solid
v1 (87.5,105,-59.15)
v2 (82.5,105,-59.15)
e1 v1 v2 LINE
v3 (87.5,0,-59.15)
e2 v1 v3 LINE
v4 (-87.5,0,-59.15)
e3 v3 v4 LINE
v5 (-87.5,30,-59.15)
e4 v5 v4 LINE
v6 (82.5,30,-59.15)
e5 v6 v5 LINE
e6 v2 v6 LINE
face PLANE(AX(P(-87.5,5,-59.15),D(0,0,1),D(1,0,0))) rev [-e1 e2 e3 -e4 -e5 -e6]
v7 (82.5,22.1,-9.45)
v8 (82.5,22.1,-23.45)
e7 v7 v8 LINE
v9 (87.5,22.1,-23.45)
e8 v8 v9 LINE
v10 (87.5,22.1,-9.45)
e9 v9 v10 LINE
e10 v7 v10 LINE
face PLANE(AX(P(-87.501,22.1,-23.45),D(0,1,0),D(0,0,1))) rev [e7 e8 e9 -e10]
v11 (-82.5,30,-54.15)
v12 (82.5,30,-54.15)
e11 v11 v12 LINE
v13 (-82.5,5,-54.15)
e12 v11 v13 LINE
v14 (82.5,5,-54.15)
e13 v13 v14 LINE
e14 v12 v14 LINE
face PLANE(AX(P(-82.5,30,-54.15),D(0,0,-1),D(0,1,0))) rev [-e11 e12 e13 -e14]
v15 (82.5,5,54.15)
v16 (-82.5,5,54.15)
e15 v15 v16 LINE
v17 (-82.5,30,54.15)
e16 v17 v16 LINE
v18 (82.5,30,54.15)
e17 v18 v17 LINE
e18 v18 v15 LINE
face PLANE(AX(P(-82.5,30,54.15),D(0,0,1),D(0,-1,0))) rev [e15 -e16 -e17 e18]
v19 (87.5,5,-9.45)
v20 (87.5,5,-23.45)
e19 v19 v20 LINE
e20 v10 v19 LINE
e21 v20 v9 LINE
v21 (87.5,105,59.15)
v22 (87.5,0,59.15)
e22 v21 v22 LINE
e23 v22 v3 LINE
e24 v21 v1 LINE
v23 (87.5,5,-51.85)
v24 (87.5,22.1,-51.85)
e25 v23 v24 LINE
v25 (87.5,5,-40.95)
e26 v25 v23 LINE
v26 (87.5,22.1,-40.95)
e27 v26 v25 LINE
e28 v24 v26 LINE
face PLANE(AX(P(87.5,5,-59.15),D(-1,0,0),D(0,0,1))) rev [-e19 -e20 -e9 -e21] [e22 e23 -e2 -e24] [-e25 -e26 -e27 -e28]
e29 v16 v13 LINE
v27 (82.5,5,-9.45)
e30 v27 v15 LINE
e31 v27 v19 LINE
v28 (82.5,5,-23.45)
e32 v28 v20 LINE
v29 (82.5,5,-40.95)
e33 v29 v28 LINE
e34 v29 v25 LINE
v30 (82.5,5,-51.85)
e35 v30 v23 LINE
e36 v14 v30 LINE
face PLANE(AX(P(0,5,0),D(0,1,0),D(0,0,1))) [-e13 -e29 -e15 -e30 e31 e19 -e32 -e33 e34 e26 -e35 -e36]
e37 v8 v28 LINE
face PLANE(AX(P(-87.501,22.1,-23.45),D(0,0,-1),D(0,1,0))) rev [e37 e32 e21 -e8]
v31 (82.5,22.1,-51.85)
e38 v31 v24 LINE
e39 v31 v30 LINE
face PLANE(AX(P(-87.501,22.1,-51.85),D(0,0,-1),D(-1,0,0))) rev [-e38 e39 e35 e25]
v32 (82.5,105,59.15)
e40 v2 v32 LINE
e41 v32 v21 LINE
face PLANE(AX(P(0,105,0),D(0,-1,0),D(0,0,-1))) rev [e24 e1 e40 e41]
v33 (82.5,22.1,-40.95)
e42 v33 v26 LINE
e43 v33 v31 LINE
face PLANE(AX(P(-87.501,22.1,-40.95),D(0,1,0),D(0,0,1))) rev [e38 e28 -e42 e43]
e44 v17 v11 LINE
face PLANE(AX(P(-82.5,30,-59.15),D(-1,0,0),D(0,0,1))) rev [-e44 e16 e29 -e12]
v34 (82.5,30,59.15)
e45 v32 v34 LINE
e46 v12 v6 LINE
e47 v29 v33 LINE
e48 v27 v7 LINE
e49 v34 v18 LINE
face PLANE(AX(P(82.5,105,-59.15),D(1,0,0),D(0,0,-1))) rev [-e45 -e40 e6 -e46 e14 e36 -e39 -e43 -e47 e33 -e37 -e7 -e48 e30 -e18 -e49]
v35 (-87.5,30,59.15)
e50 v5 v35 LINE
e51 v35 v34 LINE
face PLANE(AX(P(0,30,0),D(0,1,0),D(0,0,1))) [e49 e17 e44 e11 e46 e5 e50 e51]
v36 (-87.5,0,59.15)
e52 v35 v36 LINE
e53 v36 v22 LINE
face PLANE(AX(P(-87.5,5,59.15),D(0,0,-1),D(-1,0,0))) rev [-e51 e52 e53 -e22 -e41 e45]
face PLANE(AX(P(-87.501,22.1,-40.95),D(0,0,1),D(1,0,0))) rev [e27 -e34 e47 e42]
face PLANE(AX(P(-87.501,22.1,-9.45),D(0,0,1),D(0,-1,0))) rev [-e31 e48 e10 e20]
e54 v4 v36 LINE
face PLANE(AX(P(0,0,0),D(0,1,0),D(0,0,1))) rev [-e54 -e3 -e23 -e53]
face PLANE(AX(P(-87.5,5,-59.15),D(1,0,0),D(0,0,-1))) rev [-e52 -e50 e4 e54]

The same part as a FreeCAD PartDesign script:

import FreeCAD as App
import Part
import Sketcher

doc = App.newDocument("Part")
body = doc.addObject("PartDesign::Body", "Body")

# Sketch on XZ plane
sketch1 = body.newObject("Sketcher::SketchObject", "Sketch")
sketch1.AttachmentSupport = (doc.getObject("XZ_Plane"), [""])
sketch1.MapMode = "FlatFace"
sketch1.addGeometry([
    Part.LineSegment(App.Vector(-88, -59, 0), App.Vector(-88, 59, 0)),
    Part.LineSegment(App.Vector(-88, 59, 0), App.Vector(88, 59, 0)),
    Part.LineSegment(App.Vector(88, 59, 0), App.Vector(88, -59, 0)),
    Part.LineSegment(App.Vector(88, -59, 0), App.Vector(-88, -59, 0)),
], False)
sketch1.addConstraint([
    Sketcher.Constraint("Coincident", 0, 2, 1, 1),
    Sketcher.Constraint("Coincident", 1, 2, 2, 1),
    Sketcher.Constraint("Coincident", 2, 2, 3, 1),
    Sketcher.Constraint("Coincident", 3, 2, 0, 1),
    Sketcher.Constraint("Vertical", 0),
    Sketcher.Constraint("Horizontal", 1),
    Sketcher.Constraint("Vertical", 2),
    Sketcher.Constraint("Horizontal", 3),
    Sketcher.Constraint("Symmetric", 0, 2, 2, 2, -1, 1),
    Sketcher.Constraint("DistanceX", 1, 1, 1, 2, 175.0),
    Sketcher.Constraint("DistanceY", 0, 1, 0, 2, 118.3),
])
pad1 = body.newObject("PartDesign::Pad", "Pad")
pad1.Profile = sketch1
pad1.Length = 5
pad1.Reversed = True

# Sketch on XZ plane
sketch2 = body.newObject("Sketcher::SketchObject", "Sketch001")
sketch2.AttachmentSupport = (doc.getObject("XZ_Plane"), [""])
sketch2.MapMode = "FlatFace"
sketch2.AttachmentOffset = App.Placement(App.Vector(0, 0, -5), App.Rotation())
sketch2.addGeometry([
    Part.LineSegment(App.Vector(-88, -59, 0), App.Vector(-88, 59, 0)),
    Part.LineSegment(App.Vector(-88, 59, 0), App.Vector(-82, 59, 0)),
    Part.LineSegment(App.Vector(-82, 59, 0), App.Vector(-82, -59, 0)),
    Part.LineSegment(App.Vector(-82, -59, 0), App.Vector(-88, -59, 0)),
], False)
sketch2.addConstraint([
    Sketcher.Constraint("Coincident", 0, 2, 1, 1),
    Sketcher.Constraint("Coincident", 1, 2, 2, 1),
    Sketcher.Constraint("Coincident", 2, 2, 3, 1),
    Sketcher.Constraint("Coincident", 3, 2, 0, 1),
    Sketcher.Constraint("Vertical", 0),
    Sketcher.Constraint("Horizontal", 1),
    Sketcher.Constraint("Vertical", 2),
    Sketcher.Constraint("Horizontal", 3),
    Sketcher.Constraint("DistanceX", 1, 1, 1, 2, 5.0),
    Sketcher.Constraint("DistanceY", 0, 1, 0, 2, 118.3),
    Sketcher.Constraint("DistanceX", 0, 2, -1, 1, 87.5),
    Sketcher.Constraint("DistanceY", -1, 1, 0, 2, 59.15),
])
pad2 = body.newObject("PartDesign::Pad", "Pad001")
pad2.Profile = sketch2
pad2.Length = 25
pad2.Reversed = True

# Sketch on XZ plane
sketch3 = body.newObject("Sketcher::SketchObject", "Sketch002")
sketch3.AttachmentSupport = (doc.getObject("XZ_Plane"), [""])
sketch3.MapMode = "FlatFace"
sketch3.AttachmentOffset = App.Placement(App.Vector(0, 0, -5), App.Rotation())
sketch3.addGeometry([
    Part.LineSegment(App.Vector(82, -59, 0), App.Vector(82, 59, 0)),
    Part.LineSegment(App.Vector(82, 59, 0), App.Vector(88, 59, 0)),
    Part.LineSegment(App.Vector(88, 59, 0), App.Vector(88, -59, 0)),
    Part.LineSegment(App.Vector(88, -59, 0), App.Vector(82, -59, 0)),
], False)
sketch3.addConstraint([
    Sketcher.Constraint("Coincident", 0, 2, 1, 1),
    Sketcher.Constraint("Coincident", 1, 2, 2, 1),
    Sketcher.Constraint("Coincident", 2, 2, 3, 1),
    Sketcher.Constraint("Coincident", 3, 2, 0, 1),
    Sketcher.Constraint("Vertical", 0),
    Sketcher.Constraint("Horizontal", 1),
    Sketcher.Constraint("Vertical", 2),
    Sketcher.Constraint("Horizontal", 3),
    Sketcher.Constraint("DistanceX", 1, 1, 1, 2, 5.0),
    Sketcher.Constraint("DistanceY", 0, 1, 0, 2, 118.3),
    Sketcher.Constraint("DistanceX", -1, 1, 0, 2, 82.5),
    Sketcher.Constraint("DistanceY", -1, 1, 0, 2, 59.15),
])
pad3 = body.newObject("PartDesign::Pad", "Pad002")
pad3.Profile = sketch3
pad3.Length = 100
pad3.Reversed = True

# Sketch on XZ plane
sketch4 = body.newObject("Sketcher::SketchObject", "Sketch003")
sketch4.AttachmentSupport = (doc.getObject("XZ_Plane"), [""])
sketch4.MapMode = "FlatFace"
sketch4.AttachmentOffset = App.Placement(App.Vector(0, 0, -5), App.Rotation())
sketch4.addGeometry([
    Part.LineSegment(App.Vector(-82, 54, 0), App.Vector(-82, 59, 0)),
    Part.LineSegment(App.Vector(-82, 59, 0), App.Vector(82, 59, 0)),
    Part.LineSegment(App.Vector(82, 59, 0), App.Vector(82, 54, 0)),
    Part.LineSegment(App.Vector(82, 54, 0), App.Vector(-82, 54, 0)),
], False)
sketch4.addConstraint([
    Sketcher.Constraint("Coincident", 0, 2, 1, 1),
    Sketcher.Constraint("Coincident", 1, 2, 2, 1),
    Sketcher.Constraint("Coincident", 2, 2, 3, 1),
    Sketcher.Constraint("Coincident", 3, 2, 0, 1),
    Sketcher.Constraint("Vertical", 0),
    Sketcher.Constraint("Horizontal", 1),
    Sketcher.Constraint("Vertical", 2),
    Sketcher.Constraint("Horizontal", 3),
    Sketcher.Constraint("DistanceX", 1, 1, 1, 2, 165.0),
    Sketcher.Constraint("DistanceY", 0, 1, 0, 2, 5.0),
    Sketcher.Constraint("DistanceX", 0, 2, -1, 1, 82.5),
    Sketcher.Constraint("DistanceY", -1, 1, 0, 2, 59.15),
])
pad4 = body.newObject("PartDesign::Pad", "Pad003")
pad4.Profile = sketch4
pad4.Length = 25
pad4.Reversed = True

# Sketch on XZ plane
sketch5 = body.newObject("Sketcher::SketchObject", "Sketch004")
sketch5.AttachmentSupport = (doc.getObject("XZ_Plane"), [""])
sketch5.MapMode = "FlatFace"
sketch5.AttachmentOffset = App.Placement(App.Vector(0, 0, -5), App.Rotation())
sketch5.addGeometry([
    Part.LineSegment(App.Vector(-82, -59, 0), App.Vector(-82, -54, 0)),
    Part.LineSegment(App.Vector(-82, -54, 0), App.Vector(82, -54, 0)),
    Part.LineSegment(App.Vector(82, -54, 0), App.Vector(82, -59, 0)),
    Part.LineSegment(App.Vector(82, -59, 0), App.Vector(-82, -59, 0)),
], False)
sketch5.addConstraint([
    Sketcher.Constraint("Coincident", 0, 2, 1, 1),
    Sketcher.Constraint("Coincident", 1, 2, 2, 1),
    Sketcher.Constraint("Coincident", 2, 2, 3, 1),
    Sketcher.Constraint("Coincident", 3, 2, 0, 1),
    Sketcher.Constraint("Vertical", 0),
    Sketcher.Constraint("Horizontal", 1),
    Sketcher.Constraint("Vertical", 2),
    Sketcher.Constraint("Horizontal", 3),
    Sketcher.Constraint("DistanceX", 1, 1, 1, 2, 165.0),
    Sketcher.Constraint("DistanceY", 0, 1, 0, 2, 5.0),
    Sketcher.Constraint("DistanceX", 0, 2, -1, 1, 82.5),
    Sketcher.Constraint("DistanceY", 0, 2, -1, 1, 54.15),
])
pad5 = body.newObject("PartDesign::Pad", "Pad004")
pad5.Profile = sketch5
pad5.Length = 25
pad5.Reversed = True

# Sketch on YZ plane
sketch6 = body.newObject("Sketcher::SketchObject", "Sketch005")
sketch6.AttachmentSupport = (doc.getObject("YZ_Plane"), [""])
sketch6.MapMode = "FlatFace"
sketch6.AttachmentOffset = App.Placement(App.Vector(0, 0, 87.5), App.Rotation())
sketch6.addGeometry([
    Part.LineSegment(App.Vector(22, -9, 0), App.Vector(5, -9, 0)),
    Part.LineSegment(App.Vector(5, -9, 0), App.Vector(5, -23, 0)),
    Part.LineSegment(App.Vector(5, -23, 0), App.Vector(22, -23, 0)),
    Part.LineSegment(App.Vector(22, -23, 0), App.Vector(22, -9, 0)),
], False)
sketch6.addConstraint([
    Sketcher.Constraint("Coincident", 0, 2, 1, 1),
    Sketcher.Constraint("Coincident", 1, 2, 2, 1),
    Sketcher.Constraint("Coincident", 2, 2, 3, 1),
    Sketcher.Constraint("Coincident", 3, 2, 0, 1),
    Sketcher.Constraint("Horizontal", 0),
    Sketcher.Constraint("Vertical", 1),
    Sketcher.Constraint("Horizontal", 2),
    Sketcher.Constraint("Vertical", 3),
    Sketcher.Constraint("DistanceY", 1, 2, 1, 1, 14.0),
    Sketcher.Constraint("DistanceX", 0, 2, 0, 1, 17.1),
    Sketcher.Constraint("DistanceX", -1, 1, 0, 2, 5.0),
    Sketcher.Constraint("DistanceY", 0, 2, -1, 1, 9.45),
])
pocket1 = body.newObject("PartDesign::Pocket", "Pocket")
pocket1.Profile = sketch6
pocket1.Type = "UpToFirst"

# Sketch on YZ plane
sketch7 = body.newObject("Sketcher::SketchObject", "Sketch006")
sketch7.AttachmentSupport = (doc.getObject("YZ_Plane"), [""])
sketch7.MapMode = "FlatFace"
sketch7.AttachmentOffset = App.Placement(App.Vector(0, 0, 87.5), App.Rotation())
sketch7.addGeometry([
    Part.LineSegment(App.Vector(22, -41, 0), App.Vector(5, -41, 0)),
    Part.LineSegment(App.Vector(5, -41, 0), App.Vector(5, -52, 0)),
    Part.LineSegment(App.Vector(5, -52, 0), App.Vector(22, -52, 0)),
    Part.LineSegment(App.Vector(22, -52, 0), App.Vector(22, -41, 0)),
], False)
sketch7.addConstraint([
    Sketcher.Constraint("Coincident", 0, 2, 1, 1),
    Sketcher.Constraint("Coincident", 1, 2, 2, 1),
    Sketcher.Constraint("Coincident", 2, 2, 3, 1),
    Sketcher.Constraint("Coincident", 3, 2, 0, 1),
    Sketcher.Constraint("Horizontal", 0),
    Sketcher.Constraint("Vertical", 1),
    Sketcher.Constraint("Horizontal", 2),
    Sketcher.Constraint("Vertical", 3),
    Sketcher.Constraint("DistanceX", 0, 2, 0, 1, 17.1),
    Sketcher.Constraint("DistanceY", 1, 2, 1, 1, 10.9),
    Sketcher.Constraint("DistanceX", -1, 1, 0, 2, 5.0),
    Sketcher.Constraint("DistanceY", 0, 2, -1, 1, 40.95),
])
pocket2 = body.newObject("PartDesign::Pocket", "Pocket001")
pocket2.Profile = sketch7
pocket2.Type = "UpToFirst"

doc.recompute()
